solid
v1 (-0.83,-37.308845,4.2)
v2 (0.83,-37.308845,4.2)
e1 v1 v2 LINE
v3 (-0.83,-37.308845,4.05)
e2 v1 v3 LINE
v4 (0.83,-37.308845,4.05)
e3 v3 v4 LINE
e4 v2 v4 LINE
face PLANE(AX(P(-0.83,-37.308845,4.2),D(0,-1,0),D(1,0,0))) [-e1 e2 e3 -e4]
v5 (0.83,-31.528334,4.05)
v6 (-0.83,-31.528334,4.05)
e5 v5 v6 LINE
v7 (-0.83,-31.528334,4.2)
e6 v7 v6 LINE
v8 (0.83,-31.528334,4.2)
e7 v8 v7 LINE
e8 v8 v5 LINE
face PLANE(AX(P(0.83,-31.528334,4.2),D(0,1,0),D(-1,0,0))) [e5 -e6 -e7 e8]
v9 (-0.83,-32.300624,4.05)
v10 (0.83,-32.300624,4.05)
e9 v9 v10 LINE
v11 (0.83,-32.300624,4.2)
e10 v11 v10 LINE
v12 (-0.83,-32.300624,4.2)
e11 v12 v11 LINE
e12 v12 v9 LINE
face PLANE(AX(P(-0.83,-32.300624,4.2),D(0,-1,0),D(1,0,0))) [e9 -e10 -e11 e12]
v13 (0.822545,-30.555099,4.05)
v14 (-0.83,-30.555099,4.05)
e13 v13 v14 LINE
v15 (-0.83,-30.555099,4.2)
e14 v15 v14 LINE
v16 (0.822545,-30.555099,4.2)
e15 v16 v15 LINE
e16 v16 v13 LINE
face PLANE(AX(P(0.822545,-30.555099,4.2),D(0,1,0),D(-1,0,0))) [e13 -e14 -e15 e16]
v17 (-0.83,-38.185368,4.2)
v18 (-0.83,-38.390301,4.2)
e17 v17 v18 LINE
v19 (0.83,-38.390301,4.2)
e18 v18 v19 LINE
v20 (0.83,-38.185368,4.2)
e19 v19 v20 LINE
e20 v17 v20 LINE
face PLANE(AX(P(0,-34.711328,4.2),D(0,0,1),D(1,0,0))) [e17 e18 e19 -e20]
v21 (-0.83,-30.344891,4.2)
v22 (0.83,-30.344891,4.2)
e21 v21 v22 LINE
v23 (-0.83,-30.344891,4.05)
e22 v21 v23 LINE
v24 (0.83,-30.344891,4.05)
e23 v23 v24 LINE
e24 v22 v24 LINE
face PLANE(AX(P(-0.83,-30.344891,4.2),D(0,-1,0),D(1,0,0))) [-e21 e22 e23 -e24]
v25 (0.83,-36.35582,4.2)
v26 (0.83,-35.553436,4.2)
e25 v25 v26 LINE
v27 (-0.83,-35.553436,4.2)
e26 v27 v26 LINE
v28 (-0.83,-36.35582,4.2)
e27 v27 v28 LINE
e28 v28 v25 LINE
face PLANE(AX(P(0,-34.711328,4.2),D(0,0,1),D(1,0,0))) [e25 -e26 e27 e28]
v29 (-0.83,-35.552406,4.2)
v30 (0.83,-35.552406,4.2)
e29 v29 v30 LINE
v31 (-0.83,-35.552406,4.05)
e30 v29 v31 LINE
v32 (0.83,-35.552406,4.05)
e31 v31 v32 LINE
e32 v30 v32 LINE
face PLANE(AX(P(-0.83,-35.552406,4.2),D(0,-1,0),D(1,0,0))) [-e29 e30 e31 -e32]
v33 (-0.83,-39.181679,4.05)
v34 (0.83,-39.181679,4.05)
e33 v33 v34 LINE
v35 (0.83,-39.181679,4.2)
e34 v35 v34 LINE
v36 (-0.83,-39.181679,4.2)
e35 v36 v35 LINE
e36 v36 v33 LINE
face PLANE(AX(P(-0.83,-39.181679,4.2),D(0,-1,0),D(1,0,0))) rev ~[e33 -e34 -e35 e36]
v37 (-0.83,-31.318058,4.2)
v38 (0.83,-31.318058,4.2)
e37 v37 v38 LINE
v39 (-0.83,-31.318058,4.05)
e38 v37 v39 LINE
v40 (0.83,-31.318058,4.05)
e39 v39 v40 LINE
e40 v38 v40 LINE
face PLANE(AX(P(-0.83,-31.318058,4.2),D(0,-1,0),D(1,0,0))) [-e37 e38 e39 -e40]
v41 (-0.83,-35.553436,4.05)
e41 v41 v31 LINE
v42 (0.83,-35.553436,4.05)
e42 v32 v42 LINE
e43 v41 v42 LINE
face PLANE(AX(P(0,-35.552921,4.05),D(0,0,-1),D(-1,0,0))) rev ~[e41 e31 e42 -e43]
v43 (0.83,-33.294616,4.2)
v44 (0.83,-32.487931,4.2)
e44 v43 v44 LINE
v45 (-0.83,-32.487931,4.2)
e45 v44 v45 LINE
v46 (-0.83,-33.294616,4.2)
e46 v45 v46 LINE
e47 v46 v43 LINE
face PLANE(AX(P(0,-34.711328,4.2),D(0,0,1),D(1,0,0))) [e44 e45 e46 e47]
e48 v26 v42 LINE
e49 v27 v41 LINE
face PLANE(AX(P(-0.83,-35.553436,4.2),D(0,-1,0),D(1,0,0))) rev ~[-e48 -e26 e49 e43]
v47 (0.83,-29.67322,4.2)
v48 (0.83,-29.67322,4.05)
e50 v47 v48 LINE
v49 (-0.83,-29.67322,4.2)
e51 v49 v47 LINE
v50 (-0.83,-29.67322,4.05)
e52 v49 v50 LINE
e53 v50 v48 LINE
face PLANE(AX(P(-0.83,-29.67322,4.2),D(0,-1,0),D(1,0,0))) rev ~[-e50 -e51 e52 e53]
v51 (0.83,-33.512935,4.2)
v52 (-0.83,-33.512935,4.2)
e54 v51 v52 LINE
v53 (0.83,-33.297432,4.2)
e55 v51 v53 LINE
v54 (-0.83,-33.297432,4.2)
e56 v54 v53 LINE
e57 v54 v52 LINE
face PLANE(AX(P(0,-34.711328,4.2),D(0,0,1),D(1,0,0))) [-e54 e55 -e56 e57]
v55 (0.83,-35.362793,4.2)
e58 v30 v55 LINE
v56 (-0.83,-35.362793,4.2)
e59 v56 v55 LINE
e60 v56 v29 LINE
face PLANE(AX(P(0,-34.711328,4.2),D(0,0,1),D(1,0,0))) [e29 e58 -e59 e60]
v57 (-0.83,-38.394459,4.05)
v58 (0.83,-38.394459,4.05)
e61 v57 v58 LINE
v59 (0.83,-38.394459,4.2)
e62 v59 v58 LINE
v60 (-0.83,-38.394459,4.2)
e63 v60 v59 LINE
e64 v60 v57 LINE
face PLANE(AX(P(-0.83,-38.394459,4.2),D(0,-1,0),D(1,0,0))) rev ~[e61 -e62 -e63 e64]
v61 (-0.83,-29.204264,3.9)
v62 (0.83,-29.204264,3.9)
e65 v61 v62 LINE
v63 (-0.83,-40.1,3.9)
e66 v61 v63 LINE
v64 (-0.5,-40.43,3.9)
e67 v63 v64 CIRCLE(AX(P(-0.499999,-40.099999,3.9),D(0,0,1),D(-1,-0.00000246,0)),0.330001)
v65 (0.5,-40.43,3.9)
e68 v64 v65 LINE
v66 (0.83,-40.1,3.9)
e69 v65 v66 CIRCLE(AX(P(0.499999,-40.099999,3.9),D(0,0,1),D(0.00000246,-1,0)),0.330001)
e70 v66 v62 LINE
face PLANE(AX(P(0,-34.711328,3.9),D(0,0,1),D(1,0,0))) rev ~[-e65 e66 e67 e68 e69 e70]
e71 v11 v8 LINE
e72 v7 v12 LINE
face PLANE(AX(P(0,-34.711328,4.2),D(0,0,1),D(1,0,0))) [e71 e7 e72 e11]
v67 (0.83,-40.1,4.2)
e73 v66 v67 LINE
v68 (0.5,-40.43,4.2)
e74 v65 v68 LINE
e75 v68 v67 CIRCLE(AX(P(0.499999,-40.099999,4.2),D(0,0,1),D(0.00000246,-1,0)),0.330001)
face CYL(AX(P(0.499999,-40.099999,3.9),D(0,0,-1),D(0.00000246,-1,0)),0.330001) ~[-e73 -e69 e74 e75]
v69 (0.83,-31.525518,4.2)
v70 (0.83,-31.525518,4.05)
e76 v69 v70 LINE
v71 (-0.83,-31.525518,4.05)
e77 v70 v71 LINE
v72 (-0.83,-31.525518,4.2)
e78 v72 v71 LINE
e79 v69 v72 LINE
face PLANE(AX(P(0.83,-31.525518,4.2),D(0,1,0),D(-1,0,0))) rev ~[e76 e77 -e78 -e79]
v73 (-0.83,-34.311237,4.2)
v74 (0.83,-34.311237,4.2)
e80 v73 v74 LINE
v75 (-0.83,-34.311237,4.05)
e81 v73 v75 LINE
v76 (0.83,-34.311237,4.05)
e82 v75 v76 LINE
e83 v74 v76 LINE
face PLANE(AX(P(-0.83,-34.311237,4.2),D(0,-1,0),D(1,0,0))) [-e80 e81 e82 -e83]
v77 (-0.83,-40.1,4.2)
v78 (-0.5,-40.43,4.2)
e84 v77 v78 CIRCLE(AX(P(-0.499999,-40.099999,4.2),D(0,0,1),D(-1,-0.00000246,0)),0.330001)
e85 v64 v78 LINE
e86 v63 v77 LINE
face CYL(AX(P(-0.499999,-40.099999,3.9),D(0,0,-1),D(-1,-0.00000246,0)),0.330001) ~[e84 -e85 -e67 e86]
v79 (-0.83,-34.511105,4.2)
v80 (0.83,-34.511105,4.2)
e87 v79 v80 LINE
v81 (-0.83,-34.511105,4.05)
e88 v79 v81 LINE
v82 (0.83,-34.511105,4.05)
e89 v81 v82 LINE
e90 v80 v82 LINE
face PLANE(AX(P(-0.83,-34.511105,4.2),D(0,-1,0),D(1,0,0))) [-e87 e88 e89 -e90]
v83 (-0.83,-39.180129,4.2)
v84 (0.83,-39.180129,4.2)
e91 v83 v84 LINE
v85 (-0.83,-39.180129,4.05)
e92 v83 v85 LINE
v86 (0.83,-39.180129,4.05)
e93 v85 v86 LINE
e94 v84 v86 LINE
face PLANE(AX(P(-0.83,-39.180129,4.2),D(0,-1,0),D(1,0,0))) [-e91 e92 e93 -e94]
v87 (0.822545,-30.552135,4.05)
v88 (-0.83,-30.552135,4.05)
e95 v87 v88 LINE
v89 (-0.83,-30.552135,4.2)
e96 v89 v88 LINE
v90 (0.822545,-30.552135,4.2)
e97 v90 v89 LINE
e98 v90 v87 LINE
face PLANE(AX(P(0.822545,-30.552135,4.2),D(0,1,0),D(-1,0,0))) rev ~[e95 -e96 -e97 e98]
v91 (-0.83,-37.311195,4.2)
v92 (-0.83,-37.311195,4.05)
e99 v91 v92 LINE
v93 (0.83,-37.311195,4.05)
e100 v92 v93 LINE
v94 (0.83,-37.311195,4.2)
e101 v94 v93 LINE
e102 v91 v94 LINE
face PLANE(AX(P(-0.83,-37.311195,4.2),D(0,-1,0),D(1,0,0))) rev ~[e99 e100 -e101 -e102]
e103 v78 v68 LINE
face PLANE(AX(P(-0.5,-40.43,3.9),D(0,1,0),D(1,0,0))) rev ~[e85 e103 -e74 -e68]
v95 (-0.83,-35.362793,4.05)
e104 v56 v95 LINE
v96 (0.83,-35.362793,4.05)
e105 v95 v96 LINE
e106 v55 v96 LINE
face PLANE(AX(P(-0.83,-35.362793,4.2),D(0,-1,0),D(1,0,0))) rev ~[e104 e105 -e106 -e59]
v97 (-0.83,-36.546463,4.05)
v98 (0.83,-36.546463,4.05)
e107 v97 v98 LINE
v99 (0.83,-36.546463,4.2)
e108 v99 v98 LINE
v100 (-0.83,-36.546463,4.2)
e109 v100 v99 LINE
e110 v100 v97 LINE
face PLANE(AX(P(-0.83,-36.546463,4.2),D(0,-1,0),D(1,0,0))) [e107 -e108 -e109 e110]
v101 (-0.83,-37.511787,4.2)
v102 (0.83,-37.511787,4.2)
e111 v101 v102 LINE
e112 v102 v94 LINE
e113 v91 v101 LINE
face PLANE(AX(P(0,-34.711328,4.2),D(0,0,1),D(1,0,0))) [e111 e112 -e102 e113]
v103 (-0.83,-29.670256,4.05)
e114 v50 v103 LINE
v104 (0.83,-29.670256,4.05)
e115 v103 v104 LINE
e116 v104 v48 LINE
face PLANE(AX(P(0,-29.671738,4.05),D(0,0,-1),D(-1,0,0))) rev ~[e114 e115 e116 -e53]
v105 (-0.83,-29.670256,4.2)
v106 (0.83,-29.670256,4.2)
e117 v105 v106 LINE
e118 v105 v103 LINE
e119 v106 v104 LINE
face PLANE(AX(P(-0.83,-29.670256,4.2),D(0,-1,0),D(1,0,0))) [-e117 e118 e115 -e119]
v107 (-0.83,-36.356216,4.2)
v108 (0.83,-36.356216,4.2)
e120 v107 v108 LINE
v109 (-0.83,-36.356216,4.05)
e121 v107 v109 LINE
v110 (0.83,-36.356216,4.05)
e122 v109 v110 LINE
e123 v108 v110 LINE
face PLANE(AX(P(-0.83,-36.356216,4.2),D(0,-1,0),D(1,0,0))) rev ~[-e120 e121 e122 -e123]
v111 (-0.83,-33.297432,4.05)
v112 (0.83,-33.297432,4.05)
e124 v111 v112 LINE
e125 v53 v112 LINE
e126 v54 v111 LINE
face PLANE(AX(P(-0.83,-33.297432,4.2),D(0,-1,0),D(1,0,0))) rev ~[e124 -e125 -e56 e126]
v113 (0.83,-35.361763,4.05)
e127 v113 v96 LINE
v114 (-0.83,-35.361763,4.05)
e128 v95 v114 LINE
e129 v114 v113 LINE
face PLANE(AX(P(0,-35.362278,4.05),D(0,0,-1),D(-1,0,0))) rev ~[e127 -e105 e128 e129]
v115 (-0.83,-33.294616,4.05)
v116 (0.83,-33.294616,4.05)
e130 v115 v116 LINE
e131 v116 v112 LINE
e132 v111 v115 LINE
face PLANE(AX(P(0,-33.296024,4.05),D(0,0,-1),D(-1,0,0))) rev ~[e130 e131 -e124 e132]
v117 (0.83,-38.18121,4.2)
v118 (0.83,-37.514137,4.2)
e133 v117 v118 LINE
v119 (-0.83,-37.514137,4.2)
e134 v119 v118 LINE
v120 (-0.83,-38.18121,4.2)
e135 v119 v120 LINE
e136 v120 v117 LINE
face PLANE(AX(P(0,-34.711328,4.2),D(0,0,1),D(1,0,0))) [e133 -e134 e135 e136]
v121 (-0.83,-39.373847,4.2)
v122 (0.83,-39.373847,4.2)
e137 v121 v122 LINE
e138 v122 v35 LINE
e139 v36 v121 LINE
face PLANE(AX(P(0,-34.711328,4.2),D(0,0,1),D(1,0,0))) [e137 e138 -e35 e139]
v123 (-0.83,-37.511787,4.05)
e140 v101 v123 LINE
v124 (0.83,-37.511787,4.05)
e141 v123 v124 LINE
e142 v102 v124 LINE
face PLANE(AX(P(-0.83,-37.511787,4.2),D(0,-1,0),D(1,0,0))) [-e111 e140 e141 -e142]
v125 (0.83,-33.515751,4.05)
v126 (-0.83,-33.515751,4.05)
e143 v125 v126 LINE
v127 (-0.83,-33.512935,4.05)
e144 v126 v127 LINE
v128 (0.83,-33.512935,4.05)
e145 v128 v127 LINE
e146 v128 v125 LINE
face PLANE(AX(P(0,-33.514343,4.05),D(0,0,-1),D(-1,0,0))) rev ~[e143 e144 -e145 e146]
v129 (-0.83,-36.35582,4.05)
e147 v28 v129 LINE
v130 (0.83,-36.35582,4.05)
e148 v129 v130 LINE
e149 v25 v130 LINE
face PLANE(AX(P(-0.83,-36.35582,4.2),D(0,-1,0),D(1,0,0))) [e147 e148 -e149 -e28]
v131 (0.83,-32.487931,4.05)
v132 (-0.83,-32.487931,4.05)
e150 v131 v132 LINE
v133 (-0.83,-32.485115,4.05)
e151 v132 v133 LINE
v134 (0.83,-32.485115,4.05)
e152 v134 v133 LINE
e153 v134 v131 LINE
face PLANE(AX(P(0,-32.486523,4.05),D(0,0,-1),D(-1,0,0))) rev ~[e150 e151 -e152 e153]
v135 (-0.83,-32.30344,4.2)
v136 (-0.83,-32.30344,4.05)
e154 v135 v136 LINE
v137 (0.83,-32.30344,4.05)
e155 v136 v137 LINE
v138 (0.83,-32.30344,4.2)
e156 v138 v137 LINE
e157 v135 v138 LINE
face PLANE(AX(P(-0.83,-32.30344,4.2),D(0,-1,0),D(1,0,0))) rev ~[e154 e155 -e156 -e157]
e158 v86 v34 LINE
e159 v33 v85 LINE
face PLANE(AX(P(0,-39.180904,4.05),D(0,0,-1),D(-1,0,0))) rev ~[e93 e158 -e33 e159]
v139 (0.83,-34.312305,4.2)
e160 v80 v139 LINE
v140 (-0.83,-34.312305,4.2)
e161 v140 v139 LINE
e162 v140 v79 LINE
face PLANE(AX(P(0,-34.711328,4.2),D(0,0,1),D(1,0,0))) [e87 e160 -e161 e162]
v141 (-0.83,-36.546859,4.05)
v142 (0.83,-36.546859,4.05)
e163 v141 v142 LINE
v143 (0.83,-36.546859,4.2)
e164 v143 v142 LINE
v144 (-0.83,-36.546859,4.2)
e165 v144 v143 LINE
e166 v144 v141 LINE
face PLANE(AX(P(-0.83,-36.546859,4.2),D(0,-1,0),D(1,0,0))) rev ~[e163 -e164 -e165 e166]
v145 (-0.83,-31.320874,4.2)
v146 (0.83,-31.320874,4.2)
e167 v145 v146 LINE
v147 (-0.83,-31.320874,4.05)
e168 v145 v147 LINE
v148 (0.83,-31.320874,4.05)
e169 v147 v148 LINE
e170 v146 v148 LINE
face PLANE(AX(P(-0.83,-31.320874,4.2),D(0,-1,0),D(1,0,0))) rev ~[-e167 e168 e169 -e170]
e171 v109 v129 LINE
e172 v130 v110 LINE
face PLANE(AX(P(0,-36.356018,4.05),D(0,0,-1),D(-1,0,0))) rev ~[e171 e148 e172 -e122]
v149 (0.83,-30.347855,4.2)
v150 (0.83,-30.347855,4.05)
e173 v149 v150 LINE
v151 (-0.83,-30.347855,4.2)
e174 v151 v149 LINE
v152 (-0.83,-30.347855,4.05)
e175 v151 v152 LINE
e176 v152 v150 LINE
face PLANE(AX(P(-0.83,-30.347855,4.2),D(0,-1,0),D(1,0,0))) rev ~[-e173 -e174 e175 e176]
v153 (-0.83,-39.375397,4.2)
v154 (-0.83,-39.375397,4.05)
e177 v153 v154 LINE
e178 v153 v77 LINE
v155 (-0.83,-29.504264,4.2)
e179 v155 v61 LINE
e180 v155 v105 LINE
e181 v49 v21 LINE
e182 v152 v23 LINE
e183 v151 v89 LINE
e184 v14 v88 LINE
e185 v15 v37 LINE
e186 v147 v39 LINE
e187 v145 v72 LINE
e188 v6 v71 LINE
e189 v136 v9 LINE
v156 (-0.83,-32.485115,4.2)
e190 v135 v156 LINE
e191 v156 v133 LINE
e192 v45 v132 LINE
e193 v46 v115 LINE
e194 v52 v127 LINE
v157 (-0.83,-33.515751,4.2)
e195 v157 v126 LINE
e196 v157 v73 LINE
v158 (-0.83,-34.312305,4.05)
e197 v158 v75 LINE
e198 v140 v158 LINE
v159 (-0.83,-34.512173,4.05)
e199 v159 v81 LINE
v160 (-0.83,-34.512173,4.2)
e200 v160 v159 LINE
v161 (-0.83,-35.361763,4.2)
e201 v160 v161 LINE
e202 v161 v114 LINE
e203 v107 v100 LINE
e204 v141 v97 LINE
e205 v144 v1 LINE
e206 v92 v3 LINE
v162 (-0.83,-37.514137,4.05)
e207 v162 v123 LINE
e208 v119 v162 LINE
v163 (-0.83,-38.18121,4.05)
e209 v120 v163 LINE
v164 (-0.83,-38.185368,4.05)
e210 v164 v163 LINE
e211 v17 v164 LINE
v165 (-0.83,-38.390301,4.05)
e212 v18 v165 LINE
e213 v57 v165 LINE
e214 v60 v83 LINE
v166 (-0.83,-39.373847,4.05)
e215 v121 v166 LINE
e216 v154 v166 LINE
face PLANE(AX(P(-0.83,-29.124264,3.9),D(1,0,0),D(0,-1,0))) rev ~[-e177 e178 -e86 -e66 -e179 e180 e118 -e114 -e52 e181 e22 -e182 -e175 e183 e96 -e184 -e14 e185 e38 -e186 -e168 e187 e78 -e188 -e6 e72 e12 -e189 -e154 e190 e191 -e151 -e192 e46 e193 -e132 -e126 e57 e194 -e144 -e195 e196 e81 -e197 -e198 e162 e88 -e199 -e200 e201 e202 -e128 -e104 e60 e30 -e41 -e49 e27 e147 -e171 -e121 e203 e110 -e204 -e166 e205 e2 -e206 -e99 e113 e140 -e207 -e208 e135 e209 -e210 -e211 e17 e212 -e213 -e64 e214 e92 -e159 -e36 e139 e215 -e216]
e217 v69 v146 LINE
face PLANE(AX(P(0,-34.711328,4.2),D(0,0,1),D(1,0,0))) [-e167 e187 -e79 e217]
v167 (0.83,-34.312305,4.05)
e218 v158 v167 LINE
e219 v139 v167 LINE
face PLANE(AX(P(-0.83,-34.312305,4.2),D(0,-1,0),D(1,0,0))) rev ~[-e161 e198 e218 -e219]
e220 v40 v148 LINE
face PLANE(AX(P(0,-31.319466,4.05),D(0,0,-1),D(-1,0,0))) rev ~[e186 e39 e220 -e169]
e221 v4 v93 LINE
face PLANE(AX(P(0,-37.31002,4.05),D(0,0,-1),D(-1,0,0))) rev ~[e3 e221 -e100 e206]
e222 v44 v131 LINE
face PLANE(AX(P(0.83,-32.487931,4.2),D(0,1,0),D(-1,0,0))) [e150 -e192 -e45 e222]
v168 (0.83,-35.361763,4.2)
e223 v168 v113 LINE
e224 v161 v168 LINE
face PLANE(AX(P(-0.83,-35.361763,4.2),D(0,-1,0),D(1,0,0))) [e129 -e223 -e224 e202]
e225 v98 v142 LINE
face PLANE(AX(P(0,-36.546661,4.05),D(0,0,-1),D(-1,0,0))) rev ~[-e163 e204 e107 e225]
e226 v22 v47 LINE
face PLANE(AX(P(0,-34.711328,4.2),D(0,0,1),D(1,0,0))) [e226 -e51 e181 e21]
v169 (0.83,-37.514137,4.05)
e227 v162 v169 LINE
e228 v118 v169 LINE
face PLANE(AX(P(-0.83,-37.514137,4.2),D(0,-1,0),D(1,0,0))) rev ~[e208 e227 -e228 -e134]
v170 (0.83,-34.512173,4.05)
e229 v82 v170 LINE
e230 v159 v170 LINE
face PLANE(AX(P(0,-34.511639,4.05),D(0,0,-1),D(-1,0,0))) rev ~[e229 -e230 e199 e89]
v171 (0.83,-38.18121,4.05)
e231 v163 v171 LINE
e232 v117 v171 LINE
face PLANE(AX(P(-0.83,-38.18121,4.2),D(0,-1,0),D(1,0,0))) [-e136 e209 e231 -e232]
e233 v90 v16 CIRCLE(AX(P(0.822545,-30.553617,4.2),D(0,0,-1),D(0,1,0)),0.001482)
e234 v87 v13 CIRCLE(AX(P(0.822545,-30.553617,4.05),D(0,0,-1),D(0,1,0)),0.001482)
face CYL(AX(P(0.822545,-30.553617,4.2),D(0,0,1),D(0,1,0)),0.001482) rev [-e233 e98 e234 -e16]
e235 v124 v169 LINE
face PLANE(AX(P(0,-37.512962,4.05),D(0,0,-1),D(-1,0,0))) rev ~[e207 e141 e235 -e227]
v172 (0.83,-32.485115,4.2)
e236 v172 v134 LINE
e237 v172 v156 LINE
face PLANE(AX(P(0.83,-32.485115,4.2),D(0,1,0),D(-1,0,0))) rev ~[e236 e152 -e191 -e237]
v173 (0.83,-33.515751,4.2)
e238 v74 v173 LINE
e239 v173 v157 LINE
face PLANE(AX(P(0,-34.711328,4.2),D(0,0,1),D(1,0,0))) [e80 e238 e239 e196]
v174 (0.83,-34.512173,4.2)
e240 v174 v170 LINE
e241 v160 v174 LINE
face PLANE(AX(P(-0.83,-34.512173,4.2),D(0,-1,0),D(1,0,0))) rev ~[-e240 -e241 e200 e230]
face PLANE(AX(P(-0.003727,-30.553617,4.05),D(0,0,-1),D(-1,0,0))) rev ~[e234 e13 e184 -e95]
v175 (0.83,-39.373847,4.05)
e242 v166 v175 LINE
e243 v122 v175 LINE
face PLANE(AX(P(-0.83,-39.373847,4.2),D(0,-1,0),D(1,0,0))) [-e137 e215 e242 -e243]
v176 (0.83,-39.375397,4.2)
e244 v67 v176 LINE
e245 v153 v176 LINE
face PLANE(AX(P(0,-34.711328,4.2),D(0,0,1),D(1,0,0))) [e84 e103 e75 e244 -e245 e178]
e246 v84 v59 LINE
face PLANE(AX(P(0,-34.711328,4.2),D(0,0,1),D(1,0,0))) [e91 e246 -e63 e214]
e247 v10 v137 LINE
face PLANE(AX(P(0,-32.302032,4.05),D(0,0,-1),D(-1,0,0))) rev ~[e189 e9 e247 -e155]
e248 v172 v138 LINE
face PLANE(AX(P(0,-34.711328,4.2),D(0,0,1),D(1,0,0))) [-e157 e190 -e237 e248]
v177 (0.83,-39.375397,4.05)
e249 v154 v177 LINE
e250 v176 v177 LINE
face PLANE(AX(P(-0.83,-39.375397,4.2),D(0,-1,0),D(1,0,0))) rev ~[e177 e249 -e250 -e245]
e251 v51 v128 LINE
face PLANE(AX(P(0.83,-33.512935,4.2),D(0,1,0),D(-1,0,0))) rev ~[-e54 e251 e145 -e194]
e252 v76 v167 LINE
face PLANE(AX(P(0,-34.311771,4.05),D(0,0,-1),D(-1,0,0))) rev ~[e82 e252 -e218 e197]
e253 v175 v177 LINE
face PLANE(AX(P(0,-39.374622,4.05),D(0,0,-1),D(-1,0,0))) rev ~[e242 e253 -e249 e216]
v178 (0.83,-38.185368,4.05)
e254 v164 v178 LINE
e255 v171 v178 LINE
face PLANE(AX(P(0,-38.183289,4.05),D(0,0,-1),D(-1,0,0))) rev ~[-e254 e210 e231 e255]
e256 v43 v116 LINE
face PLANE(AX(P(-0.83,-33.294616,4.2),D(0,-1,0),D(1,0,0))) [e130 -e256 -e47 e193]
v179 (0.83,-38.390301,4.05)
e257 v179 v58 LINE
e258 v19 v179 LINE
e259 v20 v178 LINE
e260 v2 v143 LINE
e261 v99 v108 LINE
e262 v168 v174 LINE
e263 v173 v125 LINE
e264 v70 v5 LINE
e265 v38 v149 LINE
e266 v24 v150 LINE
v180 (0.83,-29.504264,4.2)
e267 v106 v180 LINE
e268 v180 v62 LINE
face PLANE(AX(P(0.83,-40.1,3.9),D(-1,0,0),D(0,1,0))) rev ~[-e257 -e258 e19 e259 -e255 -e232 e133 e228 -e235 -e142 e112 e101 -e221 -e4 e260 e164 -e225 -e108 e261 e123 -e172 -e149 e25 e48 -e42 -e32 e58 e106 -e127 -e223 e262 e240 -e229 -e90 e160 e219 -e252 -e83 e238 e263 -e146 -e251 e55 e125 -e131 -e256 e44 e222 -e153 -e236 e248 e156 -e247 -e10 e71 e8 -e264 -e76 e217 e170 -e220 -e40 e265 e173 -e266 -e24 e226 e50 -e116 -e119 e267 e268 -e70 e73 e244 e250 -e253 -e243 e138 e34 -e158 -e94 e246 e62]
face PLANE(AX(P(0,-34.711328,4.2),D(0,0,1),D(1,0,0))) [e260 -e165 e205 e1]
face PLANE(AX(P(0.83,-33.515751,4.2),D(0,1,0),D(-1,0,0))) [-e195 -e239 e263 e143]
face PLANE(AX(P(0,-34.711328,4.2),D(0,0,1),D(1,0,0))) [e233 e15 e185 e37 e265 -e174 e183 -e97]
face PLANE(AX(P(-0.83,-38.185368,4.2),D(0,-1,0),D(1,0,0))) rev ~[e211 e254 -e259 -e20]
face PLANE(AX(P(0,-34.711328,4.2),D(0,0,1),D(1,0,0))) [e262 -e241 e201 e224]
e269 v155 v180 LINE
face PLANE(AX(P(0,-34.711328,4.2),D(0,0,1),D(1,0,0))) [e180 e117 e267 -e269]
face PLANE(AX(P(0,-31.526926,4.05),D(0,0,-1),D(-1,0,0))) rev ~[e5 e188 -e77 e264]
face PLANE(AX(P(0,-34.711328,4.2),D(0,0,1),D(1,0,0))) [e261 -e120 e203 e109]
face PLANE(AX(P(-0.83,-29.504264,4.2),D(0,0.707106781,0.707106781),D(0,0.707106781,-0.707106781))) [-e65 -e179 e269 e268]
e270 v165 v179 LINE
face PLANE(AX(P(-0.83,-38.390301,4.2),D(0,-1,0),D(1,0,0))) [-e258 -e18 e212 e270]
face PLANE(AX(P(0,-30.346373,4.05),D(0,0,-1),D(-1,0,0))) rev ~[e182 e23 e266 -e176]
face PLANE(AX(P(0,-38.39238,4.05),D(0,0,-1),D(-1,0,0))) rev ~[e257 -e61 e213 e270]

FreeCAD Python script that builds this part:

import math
import FreeCAD as App
import Part
import Sketcher
from FreeCAD import Vector
Q = App.Units.Quantity

doc = App.newDocument("Part")
body = doc.addObject("PartDesign::Body", "Body")

# Sketch on XY plane
sketch1 = body.newObject("Sketcher::SketchObject", "Sketch")
sketch1.AttachmentSupport = (doc.getObject("XY_Plane"), [""])
sketch1.MapMode = "FlatFace"
sketch1.AttachmentOffset = App.Placement(Vector(0, 0, 3.9), App.Rotation())
sketch1.addGeometry(Part.LineSegment(Vector(-0.83, -29.124264, 0), Vector(-0.83, -40.1, 0)), False)
sketch1.addGeometry(Part.ArcOfCircle(Part.Circle(Vector(-0.499999, -40.099999, 0), Vector(0, 0, 1), 0.330001), math.radians(-179.999859), math.radians(-90.000141)), False)
sketch1.addGeometry(Part.LineSegment(Vector(-0.5, -40.43, 0), Vector(0.5, -40.43, 0)), False)
sketch1.addGeometry(Part.ArcOfCircle(Part.Circle(Vector(0.499999, -40.099999, 0), Vector(0, 0, 1), 0.330001), math.radians(-89.999859), math.radians(-0.000141)), False)
sketch1.addGeometry(Part.LineSegment(Vector(0.83, -40.1, 0), Vector(0.83, -29.124264, 0)), False)
sketch1.addGeometry(Part.LineSegment(Vector(0.83, -29.124264, 0), Vector(-0.83, -29.124264, 0)), False)
sketch1.addConstraint(Sketcher.Constraint("Coincident", 0, 2, 1, 1))
sketch1.addConstraint(Sketcher.Constraint("Coincident", 1, 2, 2, 1))
sketch1.addConstraint(Sketcher.Constraint("Coincident", 2, 2, 3, 1))
sketch1.addConstraint(Sketcher.Constraint("Coincident", 3, 2, 4, 1))
sketch1.addConstraint(Sketcher.Constraint("Coincident", 4, 2, 5, 1))
sketch1.addConstraint(Sketcher.Constraint("Coincident", 5, 2, 0, 1))
sketch1.addConstraint(Sketcher.Constraint("Vertical", 0))
sketch1.addConstraint(Sketcher.Constraint("Horizontal", 2))
sketch1.addConstraint(Sketcher.Constraint("Vertical", 4))
sketch1.addConstraint(Sketcher.Constraint("Horizontal", 5))
sketch1.addConstraint(Sketcher.Constraint("Equal", 1, 3))
sketch1.addConstraint(Sketcher.Constraint("Symmetric", 0, 2, 3, 2, -2))
sketch1.addConstraint(Sketcher.Constraint("Horizontal", 3, 3, 0, 2))
sketch1.addConstraint(Sketcher.Constraint("Vertical", 3, 3, 2, 2))
sketch1.addConstraint(Sketcher.Constraint("DistanceX", 2, 1, 2, 2, 1.0))
sketch1.addConstraint(Sketcher.Constraint("Radius", 1, 0.330001))
sketch1.addConstraint(Sketcher.Constraint("DistanceX", 1, 3, 3, 3, 0.999998))
sketch1.addConstraint(Sketcher.Constraint("DistanceY", 1, 3, -1, 1, 40.099999))
sketch1.addConstraint(Sketcher.Constraint("DistanceY", 0, 2, 0, 1, 10.975736))
pad1 = body.newObject("PartDesign::Pad", "Pad")
pad1.Profile = sketch1
pad1.Length = 0.3

# Sketch on YZ plane
sketch2 = body.newObject("Sketcher::SketchObject", "Sketch001")
sketch2.AttachmentSupport = (doc.getObject("YZ_Plane"), [""])
sketch2.MapMode = "FlatFace"
sketch2.AttachmentOffset = App.Placement(Vector(0, 0, -0.83), App.Rotation())
sketch2.addGeometry(Part.LineSegment(Vector(-29.504264, 4.2, 0), Vector(-29.124264, 4.2, 0)), False)
sketch2.addGeometry(Part.LineSegment(Vector(-29.124264, 4.2, 0), Vector(-29.124264, 3.9, 0)), False)
sketch2.addGeometry(Part.LineSegment(Vector(-29.124264, 3.9, 0), Vector(-29.204264, 3.9, 0)), False)
sketch2.addGeometry(Part.LineSegment(Vector(-29.204264, 3.9, 0), Vector(-29.504264, 4.2, 0)), False)
sketch2.addConstraint(Sketcher.Constraint("Coincident", 0, 2, 1, 1))
sketch2.addConstraint(Sketcher.Constraint("Coincident", 1, 2, 2, 1))
sketch2.addConstraint(Sketcher.Constraint("Coincident", 2, 2, 3, 1))
sketch2.addConstraint(Sketcher.Constraint("Coincident", 3, 2, 0, 1))
sketch2.addConstraint(Sketcher.Constraint("Horizontal", 0))
sketch2.addConstraint(Sketcher.Constraint("Vertical", 1))
sketch2.addConstraint(Sketcher.Constraint("Horizontal", 2))
sketch2.addConstraint(Sketcher.Constraint("Angle", 3, Q("135 deg")))
sketch2.addConstraint(Sketcher.Constraint("DistanceY", 1, 2, 1, 1, 0.3))
sketch2.addConstraint(Sketcher.Constraint("DistanceX", 0, 1, 0, 2, 0.38))
sketch2.addConstraint(Sketcher.Constraint("DistanceY", -1, 1, 0, 2, 4.2))
sketch2.addConstraint(Sketcher.Constraint("DistanceX", 0, 2, -1, 1, 29.124264))
pocket1 = body.newObject("PartDesign::Pocket", "Pocket")
pocket1.Profile = sketch2
pocket1.Length = 5
pocket1.Reversed = True

# Sketch on XY plane
sketch3 = body.newObject("Sketcher::SketchObject", "Sketch002")
sketch3.AttachmentSupport = (doc.getObject("XY_Plane"), [""])
sketch3.MapMode = "FlatFace"
sketch3.AttachmentOffset = App.Placement(Vector(0, 0, 4.2), App.Rotation())
sketch3.addGeometry(Part.ArcOfCircle(Part.Circle(Vector(-0.83, -29.671738, 0), Vector(0, 0, 1), 0.001482), math.radians(90), math.radians(270)), False)
sketch3.addGeometry(Part.LineSegment(Vector(-0.83, -29.67322, 0), Vector(0.83, -29.67322, 0)), False)
sketch3.addGeometry(Part.ArcOfCircle(Part.Circle(Vector(0.83, -29.671738, 0), Vector(0, 0, 1), 0.001482), math.radians(-90), math.radians(90)), False)
sketch3.addGeometry(Part.LineSegment(Vector(0.83, -29.670256, 0), Vector(-0.83, -29.670256, 0)), False)
sketch3.addGeometry(Part.ArcOfCircle(Part.Circle(Vector(0.822545, -30.553617, 0), Vector(0, 0, 1), 0.001482), math.radians(-90), math.radians(90)), False)
sketch3.addGeometry(Part.LineSegment(Vector(0.822545, -30.552135, 0), Vector(-0.83, -30.552135, 0)), False)
sketch3.addGeometry(Part.ArcOfCircle(Part.Circle(Vector(-0.83, -30.553617, 0), Vector(0, 0, 1), 0.001482), math.radians(90), math.radians(270)), False)
sketch3.addGeometry(Part.LineSegment(Vector(-0.83, -30.555099, 0), Vector(0.822545, -30.555099, 0)), False)
sketch3.addGeometry(Part.ArcOfCircle(Part.Circle(Vector(-0.83, -30.346373, 0), Vector(0, 0, 1), 0.001482), math.radians(90), math.radians(270)), False)
sketch3.addGeometry(Part.LineSegment(Vector(-0.83, -30.347855, 0), Vector(0.83, -30.347855, 0)), False)
sketch3.addGeometry(Part.ArcOfCircle(Part.Circle(Vector(0.83, -30.346373, 0), Vector(0, 0, 1), 0.001482), math.radians(-90), math.radians(90)), False)
sketch3.addGeometry(Part.LineSegment(Vector(0.83, -30.344891, 0), Vector(-0.83, -30.344891, 0)), False)
sketch3.addGeometry(Part.ArcOfCircle(Part.Circle(Vector(-0.83, -31.319466, 0), Vector(0, 0, 1), 0.001408), math.radians(90), math.radians(270)), False)
sketch3.addGeometry(Part.LineSegment(Vector(-0.83, -31.320874, 0), Vector(0.83, -31.320874, 0)), False)
sketch3.addGeometry(Part.ArcOfCircle(Part.Circle(Vector(0.83, -31.319466, 0), Vector(0, 0, 1), 0.001408), math.radians(-90), math.radians(90)), False)
sketch3.addGeometry(Part.LineSegment(Vector(0.83, -31.318058, 0), Vector(-0.83, -31.318058, 0)), False)
sketch3.addGeometry(Part.ArcOfCircle(Part.Circle(Vector(0.83, -33.514343, 0), Vector(0, 0, 1), 0.001408), math.radians(-90), math.radians(90)), False)
sketch3.addGeometry(Part.LineSegment(Vector(0.83, -33.512935, 0), Vector(-0.83, -33.512935, 0)), False)
sketch3.addGeometry(Part.ArcOfCircle(Part.Circle(Vector(-0.83, -33.514343, 0), Vector(0, 0, 1), 0.001408), math.radians(90), math.radians(270)), False)
sketch3.addGeometry(Part.LineSegment(Vector(-0.83, -33.515751, 0), Vector(0.83, -33.515751, 0)), False)
sketch3.addGeometry(Part.ArcOfCircle(Part.Circle(Vector(-0.83, -33.296024, 0), Vector(0, 0, 1), 0.001408), math.radians(90), math.radians(270)), False)
sketch3.addGeometry(Part.LineSegment(Vector(-0.83, -33.297432, 0), Vector(0.83, -33.297432, 0)), False)
sketch3.addGeometry(Part.ArcOfCircle(Part.Circle(Vector(0.83, -33.296024, 0), Vector(0, 0, 1), 0.001408), math.radians(-90), math.radians(90)), False)
sketch3.addGeometry(Part.LineSegment(Vector(0.83, -33.294616, 0), Vector(-0.83, -33.294616, 0)), False)
sketch3.addGeometry(Part.ArcOfCircle(Part.Circle(Vector(0.83, -32.486523, 0), Vector(0, 0, 1), 0.001408), math.radians(-90), math.radians(90)), False)
sketch3.addGeometry(Part.LineSegment(Vector(0.83, -32.485115, 0), Vector(-0.83, -32.485115, 0)), False)
sketch3.addGeometry(Part.ArcOfCircle(Part.Circle(Vector(-0.83, -32.486523, 0), Vector(0, 0, 1), 0.001408), math.radians(90), math.radians(270)), False)
sketch3.addGeometry(Part.LineSegment(Vector(-0.83, -32.487931, 0), Vector(0.83, -32.487931, 0)), False)
sketch3.addGeometry(Part.ArcOfCircle(Part.Circle(Vector(-0.83, -32.302032, 0), Vector(0, 0, 1), 0.001408), math.radians(90), math.radians(270)), False)
sketch3.addGeometry(Part.LineSegment(Vector(-0.83, -32.30344, 0), Vector(0.83, -32.30344, 0)), False)
sketch3.addGeometry(Part.ArcOfCircle(Part.Circle(Vector(0.83, -32.302032, 0), Vector(0, 0, 1), 0.001408), math.radians(-90), math.radians(90)), False)
sketch3.addGeometry(Part.LineSegment(Vector(0.83, -32.300624, 0), Vector(-0.83, -32.300624, 0)), False)
sketch3.addGeometry(Part.ArcOfCircle(Part.Circle(Vector(0.83, -31.526926, 0), Vector(0, 0, 1), 0.001408), math.radians(-90), math.radians(90)), False)
sketch3.addGeometry(Part.LineSegment(Vector(0.83, -31.525518, 0), Vector(-0.83, -31.525518, 0)), False)
sketch3.addGeometry(Part.ArcOfCircle(Part.Circle(Vector(-0.83, -31.526926, 0), Vector(0, 0, 1), 0.001408), math.radians(90), math.radians(270)), False)
sketch3.addGeometry(Part.LineSegment(Vector(-0.83, -31.528334, 0), Vector(0.83, -31.528334, 0)), False)
sketch3.addGeometry(Part.ArcOfCircle(Part.Circle(Vector(-0.83, -34.311771, 0), Vector(0, 0, 1), 0.000534), math.radians(90), math.radians(270)), False)
sketch3.addGeometry(Part.LineSegment(Vector(-0.83, -34.312305, 0), Vector(0.83, -34.312305, 0)), False)
sketch3.addGeometry(Part.ArcOfCircle(Part.Circle(Vector(0.83, -34.311771, 0), Vector(0, 0, 1), 0.000534), math.radians(-90), math.radians(90)), False)
sketch3.addGeometry(Part.LineSegment(Vector(0.83, -34.311237, 0), Vector(-0.83, -34.311237, 0)), False)
sketch3.addGeometry(Part.ArcOfCircle(Part.Circle(Vector(-0.83, -34.511639, 0), Vector(0, 0, 1), 0.000534), math.radians(90), math.radians(270)), False)
sketch3.addGeometry(Part.LineSegment(Vector(-0.83, -34.512173, 0), Vector(0.83, -34.512173, 0)), False)
sketch3.addGeometry(Part.ArcOfCircle(Part.Circle(Vector(0.83, -34.511639, 0), Vector(0, 0, 1), 0.000534), math.radians(-90), math.radians(90)), False)
sketch3.addGeometry(Part.LineSegment(Vector(0.83, -34.511105, 0), Vector(-0.83, -34.511105, 0)), False)
sketch3.addGeometry(Part.ArcOfCircle(Part.Circle(Vector(-0.83, -35.362278, 0), Vector(0, 0, 1), 0.000515), math.radians(90), math.radians(270)), False)
sketch3.addGeometry(Part.LineSegment(Vector(-0.83, -35.362793, 0), Vector(0.83, -35.362793, 0)), False)
sketch3.addGeometry(Part.ArcOfCircle(Part.Circle(Vector(0.83, -35.362278, 0), Vector(0, 0, 1), 0.000515), math.radians(-90), math.radians(90)), False)
sketch3.addGeometry(Part.LineSegment(Vector(0.83, -35.361763, 0), Vector(-0.83, -35.361763, 0)), False)
sketch3.addGeometry(Part.ArcOfCircle(Part.Circle(Vector(-0.83, -35.552921, 0), Vector(0, 0, 1), 0.000515), math.radians(90), math.radians(270)), False)
sketch3.addGeometry(Part.LineSegment(Vector(-0.83, -35.553436, 0), Vector(0.83, -35.553436, 0)), False)
sketch3.addGeometry(Part.ArcOfCircle(Part.Circle(Vector(0.83, -35.552921, 0), Vector(0, 0, 1), 0.000515), math.radians(-90), math.radians(90)), False)
sketch3.addGeometry(Part.LineSegment(Vector(0.83, -35.552406, 0), Vector(-0.83, -35.552406, 0)), False)
sketch3.addGeometry(Part.ArcOfCircle(Part.Circle(Vector(-0.83, -36.356018, 0), Vector(0, 0, 1), 0.000198), math.radians(90), math.radians(270)), False)
sketch3.addGeometry(Part.LineSegment(Vector(-0.83, -36.356216, 0), Vector(0.83, -36.356216, 0)), False)
sketch3.addGeometry(Part.ArcOfCircle(Part.Circle(Vector(0.83, -36.356018, 0), Vector(0, 0, 1), 0.000198), math.radians(-90), math.radians(90)), False)
sketch3.addGeometry(Part.LineSegment(Vector(0.83, -36.35582, 0), Vector(-0.83, -36.35582, 0)), False)
sketch3.addGeometry(Part.ArcOfCircle(Part.Circle(Vector(-0.83, -36.546661, 0), Vector(0, 0, 1), 0.000198), math.radians(90), math.radians(270)), False)
sketch3.addGeometry(Part.LineSegment(Vector(-0.83, -36.546859, 0), Vector(0.83, -36.546859, 0)), False)
sketch3.addGeometry(Part.ArcOfCircle(Part.Circle(Vector(0.83, -36.546661, 0), Vector(0, 0, 1), 0.000198), math.radians(-90), math.radians(90)), False)
sketch3.addGeometry(Part.LineSegment(Vector(0.83, -36.546463, 0), Vector(-0.83, -36.546463, 0)), False)
sketch3.addGeometry(Part.ArcOfCircle(Part.Circle(Vector(-0.83, -37.31002, 0), Vector(0, 0, 1), 0.001175), math.radians(90), math.radians(270)), False)
sketch3.addGeometry(Part.LineSegment(Vector(-0.83, -37.311195, 0), Vector(0.83, -37.311195, 0)), False)
sketch3.addGeometry(Part.ArcOfCircle(Part.Circle(Vector(0.83, -37.31002, 0), Vector(0, 0, 1), 0.001175), math.radians(-90), math.radians(90)), False)
sketch3.addGeometry(Part.LineSegment(Vector(0.83, -37.308845, 0), Vector(-0.83, -37.308845, 0)), False)
sketch3.addGeometry(Part.ArcOfCircle(Part.Circle(Vector(-0.83, -37.512962, 0), Vector(0, 0, 1), 0.001175), math.radians(90), math.radians(270)), False)
sketch3.addGeometry(Part.LineSegment(Vector(-0.83, -37.514137, 0), Vector(0.83, -37.514137, 0)), False)
sketch3.addGeometry(Part.ArcOfCircle(Part.Circle(Vector(0.83, -37.512962, 0), Vector(0, 0, 1), 0.001175), math.radians(-90), math.radians(90)), False)
sketch3.addGeometry(Part.LineSegment(Vector(0.83, -37.511787, 0), Vector(-0.83, -37.511787, 0)), False)
sketch3.addGeometry(Part.ArcOfCircle(Part.Circle(Vector(-0.83, -38.183289, 0), Vector(0, 0, 1), 0.002079), math.radians(90), math.radians(270)), False)
sketch3.addGeometry(Part.LineSegment(Vector(-0.83, -38.185368, 0), Vector(0.83, -38.185368, 0)), False)
sketch3.addGeometry(Part.ArcOfCircle(Part.Circle(Vector(0.83, -38.183289, 0), Vector(0, 0, 1), 0.002079), math.radians(-90), math.radians(90)), False)
sketch3.addGeometry(Part.LineSegment(Vector(0.83, -38.18121, 0), Vector(-0.83, -38.18121, 0)), False)
sketch3.addGeometry(Part.ArcOfCircle(Part.Circle(Vector(-0.83, -38.39238, 0), Vector(0, 0, 1), 0.002079), math.radians(90), math.radians(270)), False)
sketch3.addGeometry(Part.LineSegment(Vector(-0.83, -38.394459, 0), Vector(0.83, -38.394459, 0)), False)
sketch3.addGeometry(Part.ArcOfCircle(Part.Circle(Vector(0.83, -38.39238, 0), Vector(0, 0, 1), 0.002079), math.radians(-90), math.radians(90)), False)
sketch3.addGeometry(Part.LineSegment(Vector(0.83, -38.390301, 0), Vector(-0.83, -38.390301, 0)), False)
sketch3.addGeometry(Part.ArcOfCircle(Part.Circle(Vector(-0.83, -39.180904, 0), Vector(0, 0, 1), 0.000775), math.radians(90), math.radians(270)), False)
sketch3.addGeometry(Part.LineSegment(Vector(-0.83, -39.181679, 0), Vector(0.83, -39.181679, 0)), False)
sketch3.addGeometry(Part.ArcOfCircle(Part.Circle(Vector(0.83, -39.180904, 0), Vector(0, 0, 1), 0.000775), math.radians(-90), math.radians(90)), False)
sketch3.addGeometry(Part.LineSegment(Vector(0.83, -39.180129, 0), Vector(-0.83, -39.180129, 0)), False)
sketch3.addGeometry(Part.ArcOfCircle(Part.Circle(Vector(-0.83, -39.374622, 0), Vector(0, 0, 1), 0.000775), math.radians(90), math.radians(270)), False)
sketch3.addGeometry(Part.LineSegment(Vector(-0.83, -39.375397, 0), Vector(0.83, -39.375397, 0)), False)
sketch3.addGeometry(Part.ArcOfCircle(Part.Circle(Vector(0.83, -39.374622, 0), Vector(0, 0, 1), 0.000775), math.radians(-90), math.radians(90)), False)
sketch3.addGeometry(Part.LineSegment(Vector(0.83, -39.373847, 0), Vector(-0.83, -39.373847, 0)), False)
sketch3.addConstraint(Sketcher.Constraint("Tangent", 0, 2, 1, 1))
sketch3.addConstraint(Sketcher.Constraint("Tangent", 1, 2, 2, 1))
sketch3.addConstraint(Sketcher.Constraint("Tangent", 2, 2, 3, 1))
sketch3.addConstraint(Sketcher.Constraint("Tangent", 3, 2, 0, 1))
sketch3.addConstraint(Sketcher.Constraint("Tangent", 4, 2, 5, 1))
sketch3.addConstraint(Sketcher.Constraint("Tangent", 5, 2, 6, 1))
sketch3.addConstraint(Sketcher.Constraint("Tangent", 6, 2, 7, 1))
sketch3.addConstraint(Sketcher.Constraint("Tangent", 7, 2, 4, 1))
sketch3.addConstraint(Sketcher.Constraint("Tangent", 8, 2, 9, 1))
sketch3.addConstraint(Sketcher.Constraint("Tangent", 9, 2, 10, 1))
sketch3.addConstraint(Sketcher.Constraint("Tangent", 10, 2, 11, 1))
sketch3.addConstraint(Sketcher.Constraint("Tangent", 11, 2, 8, 1))
sketch3.addConstraint(Sketcher.Constraint("Tangent", 12, 2, 13, 1))
sketch3.addConstraint(Sketcher.Constraint("Tangent", 13, 2, 14, 1))
sketch3.addConstraint(Sketcher.Constraint("Tangent", 14, 2, 15, 1))
sketch3.addConstraint(Sketcher.Constraint("Tangent", 15, 2, 12, 1))
sketch3.addConstraint(Sketcher.Constraint("Tangent", 16, 2, 17, 1))
sketch3.addConstraint(Sketcher.Constraint("Tangent", 17, 2, 18, 1))
sketch3.addConstraint(Sketcher.Constraint("Tangent", 18, 2, 19, 1))
sketch3.addConstraint(Sketcher.Constraint("Tangent", 19, 2, 16, 1))
sketch3.addConstraint(Sketcher.Constraint("Tangent", 20, 2, 21, 1))
sketch3.addConstraint(Sketcher.Constraint("Tangent", 21, 2, 22, 1))
sketch3.addConstraint(Sketcher.Constraint("Tangent", 22, 2, 23, 1))
sketch3.addConstraint(Sketcher.Constraint("Tangent", 23, 2, 20, 1))
sketch3.addConstraint(Sketcher.Constraint("Tangent", 24, 2, 25, 1))
sketch3.addConstraint(Sketcher.Constraint("Tangent", 25, 2, 26, 1))
sketch3.addConstraint(Sketcher.Constraint("Tangent", 26, 2, 27, 1))
sketch3.addConstraint(Sketcher.Constraint("Tangent", 27, 2, 24, 1))
sketch3.addConstraint(Sketcher.Constraint("Tangent", 28, 2, 29, 1))
sketch3.addConstraint(Sketcher.Constraint("Tangent", 29, 2, 30, 1))
sketch3.addConstraint(Sketcher.Constraint("Tangent", 30, 2, 31, 1))
sketch3.addConstraint(Sketcher.Constraint("Tangent", 31, 2, 28, 1))
sketch3.addConstraint(Sketcher.Constraint("Tangent", 32, 2, 33, 1))
sketch3.addConstraint(Sketcher.Constraint("Tangent", 33, 2, 34, 1))
sketch3.addConstraint(Sketcher.Constraint("Tangent", 34, 2, 35, 1))
sketch3.addConstraint(Sketcher.Constraint("Tangent", 35, 2, 32, 1))
sketch3.addConstraint(Sketcher.Constraint("Tangent", 36, 2, 37, 1))
sketch3.addConstraint(Sketcher.Constraint("Tangent", 37, 2, 38, 1))
sketch3.addConstraint(Sketcher.Constraint("Tangent", 38, 2, 39, 1))
sketch3.addConstraint(Sketcher.Constraint("Tangent", 39, 2, 36, 1))
sketch3.addConstraint(Sketcher.Constraint("Tangent", 40, 2, 41, 1))
sketch3.addConstraint(Sketcher.Constraint("Tangent", 41, 2, 42, 1))
sketch3.addConstraint(Sketcher.Constraint("Tangent", 42, 2, 43, 1))
sketch3.addConstraint(Sketcher.Constraint("Tangent", 43, 2, 40, 1))
sketch3.addConstraint(Sketcher.Constraint("Tangent", 44, 2, 45, 1))
sketch3.addConstraint(Sketcher.Constraint("Tangent", 45, 2, 46, 1))
sketch3.addConstraint(Sketcher.Constraint("Tangent", 46, 2, 47, 1))
sketch3.addConstraint(Sketcher.Constraint("Tangent", 47, 2, 44, 1))
sketch3.addConstraint(Sketcher.Constraint("Tangent", 48, 2, 49, 1))
sketch3.addConstraint(Sketcher.Constraint("Tangent", 49, 2, 50, 1))
sketch3.addConstraint(Sketcher.Constraint("Tangent", 50, 2, 51, 1))
sketch3.addConstraint(Sketcher.Constraint("Tangent", 51, 2, 48, 1))
sketch3.addConstraint(Sketcher.Constraint("Tangent", 52, 2, 53, 1))
sketch3.addConstraint(Sketcher.Constraint("Tangent", 53, 2, 54, 1))
sketch3.addConstraint(Sketcher.Constraint("Tangent", 54, 2, 55, 1))
sketch3.addConstraint(Sketcher.Constraint("Tangent", 55, 2, 52, 1))
sketch3.addConstraint(Sketcher.Constraint("Tangent", 56, 2, 57, 1))
sketch3.addConstraint(Sketcher.Constraint("Tangent", 57, 2, 58, 1))
sketch3.addConstraint(Sketcher.Constraint("Tangent", 58, 2, 59, 1))
sketch3.addConstraint(Sketcher.Constraint("Tangent", 59, 2, 56, 1))
sketch3.addConstraint(Sketcher.Constraint("Tangent", 60, 2, 61, 1))
sketch3.addConstraint(Sketcher.Constraint("Tangent", 61, 2, 62, 1))
sketch3.addConstraint(Sketcher.Constraint("Tangent", 62, 2, 63, 1))
sketch3.addConstraint(Sketcher.Constraint("Tangent", 63, 2, 60, 1))
sketch3.addConstraint(Sketcher.Constraint("Tangent", 64, 2, 65, 1))
sketch3.addConstraint(Sketcher.Constraint("Tangent", 65, 2, 66, 1))
sketch3.addConstraint(Sketcher.Constraint("Tangent", 66, 2, 67, 1))
sketch3.addConstraint(Sketcher.Constraint("Tangent", 67, 2, 64, 1))
sketch3.addConstraint(Sketcher.Constraint("Tangent", 68, 2, 69, 1))
sketch3.addConstraint(Sketcher.Constraint("Tangent", 69, 2, 70, 1))
sketch3.addConstraint(Sketcher.Constraint("Tangent", 70, 2, 71, 1))
sketch3.addConstraint(Sketcher.Constraint("Tangent", 71, 2, 68, 1))
sketch3.addConstraint(Sketcher.Constraint("Tangent", 72, 2, 73, 1))
sketch3.addConstraint(Sketcher.Constraint("Tangent", 73, 2, 74, 1))
sketch3.addConstraint(Sketcher.Constraint("Tangent", 74, 2, 75, 1))
sketch3.addConstraint(Sketcher.Constraint("Tangent", 75, 2, 72, 1))
sketch3.addConstraint(Sketcher.Constraint("Tangent", 76, 2, 77, 1))
sketch3.addConstraint(Sketcher.Constraint("Tangent", 77, 2, 78, 1))
sketch3.addConstraint(Sketcher.Constraint("Tangent", 78, 2, 79, 1))
sketch3.addConstraint(Sketcher.Constraint("Tangent", 79, 2, 76, 1))
sketch3.addConstraint(Sketcher.Constraint("Tangent", 80, 2, 81, 1))
sketch3.addConstraint(Sketcher.Constraint("Tangent", 81, 2, 82, 1))
sketch3.addConstraint(Sketcher.Constraint("Tangent", 82, 2, 83, 1))
sketch3.addConstraint(Sketcher.Constraint("Tangent", 83, 2, 80, 1))
sketch3.addConstraint(Sketcher.Constraint("Horizontal", 1))
sketch3.addConstraint(Sketcher.Constraint("Horizontal", 3))
sketch3.addConstraint(Sketcher.Constraint("Horizontal", 5))
sketch3.addConstraint(Sketcher.Constraint("Horizontal", 7))
sketch3.addConstraint(Sketcher.Constraint("Horizontal", 9))
sketch3.addConstraint(Sketcher.Constraint("Horizontal", 11))
sketch3.addConstraint(Sketcher.Constraint("Horizontal", 13))
sketch3.addConstraint(Sketcher.Constraint("Horizontal", 15))
sketch3.addConstraint(Sketcher.Constraint("Horizontal", 17))
sketch3.addConstraint(Sketcher.Constraint("Horizontal", 19))
sketch3.addConstraint(Sketcher.Constraint("Horizontal", 21))
sketch3.addConstraint(Sketcher.Constraint("Horizontal", 23))
sketch3.addConstraint(Sketcher.Constraint("Horizontal", 25))
sketch3.addConstraint(Sketcher.Constraint("Horizontal", 27))
sketch3.addConstraint(Sketcher.Constraint("Horizontal", 29))
sketch3.addConstraint(Sketcher.Constraint("Horizontal", 31))
sketch3.addConstraint(Sketcher.Constraint("Horizontal", 33))
sketch3.addConstraint(Sketcher.Constraint("Horizontal", 35))
sketch3.addConstraint(Sketcher.Constraint("Horizontal", 37))
sketch3.addConstraint(Sketcher.Constraint("Horizontal", 39))
sketch3.addConstraint(Sketcher.Constraint("Horizontal", 41))
sketch3.addConstraint(Sketcher.Constraint("Horizontal", 43))
sketch3.addConstraint(Sketcher.Constraint("Horizontal", 45))
sketch3.addConstraint(Sketcher.Constraint("Horizontal", 47))
sketch3.addConstraint(Sketcher.Constraint("Horizontal", 49))
sketch3.addConstraint(Sketcher.Constraint("Horizontal", 51))
sketch3.addConstraint(Sketcher.Constraint("Horizontal", 53))
sketch3.addConstraint(Sketcher.Constraint("Horizontal", 55))
sketch3.addConstraint(Sketcher.Constraint("Horizontal", 57))
sketch3.addConstraint(Sketcher.Constraint("Horizontal", 59))
sketch3.addConstraint(Sketcher.Constraint("Horizontal", 61))
sketch3.addConstraint(Sketcher.Constraint("Horizontal", 63))
sketch3.addConstraint(Sketcher.Constraint("Horizontal", 65))
sketch3.addConstraint(Sketcher.Constraint("Horizontal", 67))
sketch3.addConstraint(Sketcher.Constraint("Horizontal", 69))
sketch3.addConstraint(Sketcher.Constraint("Horizontal", 71))
sketch3.addConstraint(Sketcher.Constraint("Horizontal", 73))
sketch3.addConstraint(Sketcher.Constraint("Horizontal", 75))
sketch3.addConstraint(Sketcher.Constraint("Horizontal", 77))
sketch3.addConstraint(Sketcher.Constraint("Horizontal", 79))
sketch3.addConstraint(Sketcher.Constraint("Horizontal", 81))
sketch3.addConstraint(Sketcher.Constraint("Horizontal", 83))
sketch3.addConstraint(Sketcher.Constraint("Equal", 2, 4))
sketch3.addConstraint(Sketcher.Constraint("Equal", 6, 8))
sketch3.addConstraint(Sketcher.Constraint("Equal", 14, 16))
sketch3.addConstraint(Sketcher.Constraint("Equal", 18, 20))
sketch3.addConstraint(Sketcher.Constraint("Equal", 22, 24))
sketch3.addConstraint(Sketcher.Constraint("Equal", 26, 28))
sketch3.addConstraint(Sketcher.Constraint("Equal", 30, 32))
sketch3.addConstraint(Sketcher.Constraint("Equal", 38, 40))
sketch3.addConstraint(Sketcher.Constraint("Equal", 46, 48))
sketch3.addConstraint(Sketcher.Constraint("Equal", 54, 56))
sketch3.addConstraint(Sketcher.Constraint("Equal", 62, 64))
sketch3.addConstraint(Sketcher.Constraint("Equal", 70, 72))
sketch3.addConstraint(Sketcher.Constraint("Equal", 78, 80))
sketch3.addConstraint(Sketcher.Constraint("Vertical", 0, 3, 6, 3))
sketch3.addConstraint(Sketcher.Constraint("Vertical", 6, 3, 8, 3))
sketch3.addConstraint(Sketcher.Constraint("Vertical", 2, 3, 10, 3))
sketch3.addConstraint(Sketcher.Constraint("Vertical", 8, 3, 12, 3))
sketch3.addConstraint(Sketcher.Constraint("Vertical", 10, 3, 14, 3))
sketch3.addConstraint(Sketcher.Constraint("Vertical", 14, 3, 16, 3))
sketch3.addConstraint(Sketcher.Constraint("Vertical", 12, 3, 18, 3))
sketch3.addConstraint(Sketcher.Constraint("Vertical", 18, 3, 20, 3))
sketch3.addConstraint(Sketcher.Constraint("Vertical", 16, 3, 22, 3))
sketch3.addConstraint(Sketcher.Constraint("Vertical", 22, 3, 24, 3))
sketch3.addConstraint(Sketcher.Constraint("Vertical", 20, 3, 26, 3))
sketch3.addConstraint(Sketcher.Constraint("Vertical", 26, 3, 28, 3))
sketch3.addConstraint(Sketcher.Constraint("Vertical", 24, 3, 30, 3))
sketch3.addConstraint(Sketcher.Constraint("Vertical", 30, 3, 32, 3))
sketch3.addConstraint(Sketcher.Constraint("Vertical", 28, 3, 34, 3))
sketch3.addConstraint(Sketcher.Constraint("Vertical", 34, 3, 36, 3))
sketch3.addConstraint(Sketcher.Constraint("Vertical", 32, 3, 38, 3))
sketch3.addConstraint(Sketcher.Constraint("Vertical", 36, 3, 40, 3))
sketch3.addConstraint(Sketcher.Constraint("Vertical", 38, 3, 42, 3))
sketch3.addConstraint(Sketcher.Constraint("Vertical", 40, 3, 44, 3))
sketch3.addConstraint(Sketcher.Constraint("Vertical", 42, 3, 46, 3))
sketch3.addConstraint(Sketcher.Constraint("Vertical", 44, 3, 48, 3))
sketch3.addConstraint(Sketcher.Constraint("Vertical", 46, 3, 50, 3))
sketch3.addConstraint(Sketcher.Constraint("Vertical", 48, 3, 52, 3))
sketch3.addConstraint(Sketcher.Constraint("Vertical", 50, 3, 54, 3))
sketch3.addConstraint(Sketcher.Constraint("Vertical", 52, 3, 56, 3))
sketch3.addConstraint(Sketcher.Constraint("Vertical", 54, 3, 58, 3))
sketch3.addConstraint(Sketcher.Constraint("Vertical", 56, 3, 60, 3))
sketch3.addConstraint(Sketcher.Constraint("Vertical", 58, 3, 62, 3))
sketch3.addConstraint(Sketcher.Constraint("Vertical", 60, 3, 64, 3))
sketch3.addConstraint(Sketcher.Constraint("Vertical", 62, 3, 66, 3))
sketch3.addConstraint(Sketcher.Constraint("Vertical", 64, 3, 68, 3))
sketch3.addConstraint(Sketcher.Constraint("Vertical", 66, 3, 70, 3))
sketch3.addConstraint(Sketcher.Constraint("Vertical", 68, 3, 72, 3))
sketch3.addConstraint(Sketcher.Constraint("Vertical", 70, 3, 74, 3))
sketch3.addConstraint(Sketcher.Constraint("Vertical", 72, 3, 76, 3))
sketch3.addConstraint(Sketcher.Constraint("Vertical", 74, 3, 78, 3))
sketch3.addConstraint(Sketcher.Constraint("Vertical", 76, 3, 80, 3))
sketch3.addConstraint(Sketcher.Constraint("Vertical", 78, 3, 82, 3))
sketch3.addConstraint(Sketcher.Constraint("DistanceX", 1, 1, 1, 2, 1.66))
sketch3.addConstraint(Sketcher.Constraint("DistanceX", 0, 3, -1, 1, 0.83))
sketch3.addConstraint(Sketcher.Constraint("Radius", 68, 0.002079))
sketch3.addConstraint(Sketcher.Constraint("Radius", 0, 0.001482))
sketch3.addConstraint(Sketcher.Constraint("Radius", 12, 0.001408))
sketch3.addConstraint(Sketcher.Constraint("Radius", 36, 0.000534))
sketch3.addConstraint(Sketcher.Constraint("Radius", 44, 0.000515))
sketch3.addConstraint(Sketcher.Constraint("Radius", 52, 0.000198))
sketch3.addConstraint(Sketcher.Constraint("Radius", 60, 0.001175))
sketch3.addConstraint(Sketcher.Constraint("Radius", 76, 0.000775))
sketch3.addConstraint(Sketcher.Constraint("DistanceY", 6, 2, -1, 1, 30.555099))
sketch3.addConstraint(Sketcher.Constraint("DistanceY", 74, 2, -1, 1, 38.390301))
sketch3.addConstraint(Sketcher.Constraint("DistanceX", 5, 2, 5, 1, 1.652545))
sketch3.addConstraint(Sketcher.Constraint("DistanceY", 0, 3, -1, 1, 29.671738))
sketch3.addConstraint(Sketcher.Constraint("DistanceY", 28, 3, -1, 1, 32.302032))
sketch3.addConstraint(Sketcher.Constraint("DistanceY", 36, 3, -1, 1, 34.311771))
sketch3.addConstraint(Sketcher.Constraint("DistanceY", 40, 3, -1, 1, 34.511639))
sketch3.addConstraint(Sketcher.Constraint("DistanceY", 44, 3, -1, 1, 35.362278))
sketch3.addConstraint(Sketcher.Constraint("DistanceY", 48, 3, -1, 1, 35.552921))
sketch3.addConstraint(Sketcher.Constraint("DistanceY", 56, 3, -1, 1, 36.546661))
sketch3.addConstraint(Sketcher.Constraint("DistanceY", 60, 3, -1, 1, 37.31002))
sketch3.addConstraint(Sketcher.Constraint("DistanceY", 68, 3, -1, 1, 38.183289))
sketch3.addConstraint(Sketcher.Constraint("DistanceY", 10, 2, -1, 1, 30.344891))
sketch3.addConstraint(Sketcher.Constraint("DistanceY", 15, 2, -1, 1, 31.318058))
sketch3.addConstraint(Sketcher.Constraint("DistanceY", 18, 2, -1, 1, 33.515751))
sketch3.addConstraint(Sketcher.Constraint("DistanceY", 26, 2, -1, 1, 32.487931))
sketch3.addConstraint(Sketcher.Constraint("DistanceY", 33, 2, -1, 1, 31.525518))
sketch3.addConstraint(Sketcher.Constraint("DistanceY", 54, 2, -1, 1, 36.35582))
sketch3.addConstraint(Sketcher.Constraint("DistanceY", 76, 2, -1, 1, 39.181679))
sketch3.addConstraint(Sketcher.Constraint("DistanceY", 20, 3, -1, 1, 33.296024))
sketch3.addConstraint(Sketcher.Constraint("DistanceY", 64, 3, -1, 1, 37.512962))
sketch3.addConstraint(Sketcher.Constraint("DistanceY", 80, 3, -1, 1, 39.374622))
pocket2 = body.newObject("PartDesign::Pocket", "Pocket001")
pocket2.Profile = sketch3
pocket2.Length = 0.15

doc.recompute()
